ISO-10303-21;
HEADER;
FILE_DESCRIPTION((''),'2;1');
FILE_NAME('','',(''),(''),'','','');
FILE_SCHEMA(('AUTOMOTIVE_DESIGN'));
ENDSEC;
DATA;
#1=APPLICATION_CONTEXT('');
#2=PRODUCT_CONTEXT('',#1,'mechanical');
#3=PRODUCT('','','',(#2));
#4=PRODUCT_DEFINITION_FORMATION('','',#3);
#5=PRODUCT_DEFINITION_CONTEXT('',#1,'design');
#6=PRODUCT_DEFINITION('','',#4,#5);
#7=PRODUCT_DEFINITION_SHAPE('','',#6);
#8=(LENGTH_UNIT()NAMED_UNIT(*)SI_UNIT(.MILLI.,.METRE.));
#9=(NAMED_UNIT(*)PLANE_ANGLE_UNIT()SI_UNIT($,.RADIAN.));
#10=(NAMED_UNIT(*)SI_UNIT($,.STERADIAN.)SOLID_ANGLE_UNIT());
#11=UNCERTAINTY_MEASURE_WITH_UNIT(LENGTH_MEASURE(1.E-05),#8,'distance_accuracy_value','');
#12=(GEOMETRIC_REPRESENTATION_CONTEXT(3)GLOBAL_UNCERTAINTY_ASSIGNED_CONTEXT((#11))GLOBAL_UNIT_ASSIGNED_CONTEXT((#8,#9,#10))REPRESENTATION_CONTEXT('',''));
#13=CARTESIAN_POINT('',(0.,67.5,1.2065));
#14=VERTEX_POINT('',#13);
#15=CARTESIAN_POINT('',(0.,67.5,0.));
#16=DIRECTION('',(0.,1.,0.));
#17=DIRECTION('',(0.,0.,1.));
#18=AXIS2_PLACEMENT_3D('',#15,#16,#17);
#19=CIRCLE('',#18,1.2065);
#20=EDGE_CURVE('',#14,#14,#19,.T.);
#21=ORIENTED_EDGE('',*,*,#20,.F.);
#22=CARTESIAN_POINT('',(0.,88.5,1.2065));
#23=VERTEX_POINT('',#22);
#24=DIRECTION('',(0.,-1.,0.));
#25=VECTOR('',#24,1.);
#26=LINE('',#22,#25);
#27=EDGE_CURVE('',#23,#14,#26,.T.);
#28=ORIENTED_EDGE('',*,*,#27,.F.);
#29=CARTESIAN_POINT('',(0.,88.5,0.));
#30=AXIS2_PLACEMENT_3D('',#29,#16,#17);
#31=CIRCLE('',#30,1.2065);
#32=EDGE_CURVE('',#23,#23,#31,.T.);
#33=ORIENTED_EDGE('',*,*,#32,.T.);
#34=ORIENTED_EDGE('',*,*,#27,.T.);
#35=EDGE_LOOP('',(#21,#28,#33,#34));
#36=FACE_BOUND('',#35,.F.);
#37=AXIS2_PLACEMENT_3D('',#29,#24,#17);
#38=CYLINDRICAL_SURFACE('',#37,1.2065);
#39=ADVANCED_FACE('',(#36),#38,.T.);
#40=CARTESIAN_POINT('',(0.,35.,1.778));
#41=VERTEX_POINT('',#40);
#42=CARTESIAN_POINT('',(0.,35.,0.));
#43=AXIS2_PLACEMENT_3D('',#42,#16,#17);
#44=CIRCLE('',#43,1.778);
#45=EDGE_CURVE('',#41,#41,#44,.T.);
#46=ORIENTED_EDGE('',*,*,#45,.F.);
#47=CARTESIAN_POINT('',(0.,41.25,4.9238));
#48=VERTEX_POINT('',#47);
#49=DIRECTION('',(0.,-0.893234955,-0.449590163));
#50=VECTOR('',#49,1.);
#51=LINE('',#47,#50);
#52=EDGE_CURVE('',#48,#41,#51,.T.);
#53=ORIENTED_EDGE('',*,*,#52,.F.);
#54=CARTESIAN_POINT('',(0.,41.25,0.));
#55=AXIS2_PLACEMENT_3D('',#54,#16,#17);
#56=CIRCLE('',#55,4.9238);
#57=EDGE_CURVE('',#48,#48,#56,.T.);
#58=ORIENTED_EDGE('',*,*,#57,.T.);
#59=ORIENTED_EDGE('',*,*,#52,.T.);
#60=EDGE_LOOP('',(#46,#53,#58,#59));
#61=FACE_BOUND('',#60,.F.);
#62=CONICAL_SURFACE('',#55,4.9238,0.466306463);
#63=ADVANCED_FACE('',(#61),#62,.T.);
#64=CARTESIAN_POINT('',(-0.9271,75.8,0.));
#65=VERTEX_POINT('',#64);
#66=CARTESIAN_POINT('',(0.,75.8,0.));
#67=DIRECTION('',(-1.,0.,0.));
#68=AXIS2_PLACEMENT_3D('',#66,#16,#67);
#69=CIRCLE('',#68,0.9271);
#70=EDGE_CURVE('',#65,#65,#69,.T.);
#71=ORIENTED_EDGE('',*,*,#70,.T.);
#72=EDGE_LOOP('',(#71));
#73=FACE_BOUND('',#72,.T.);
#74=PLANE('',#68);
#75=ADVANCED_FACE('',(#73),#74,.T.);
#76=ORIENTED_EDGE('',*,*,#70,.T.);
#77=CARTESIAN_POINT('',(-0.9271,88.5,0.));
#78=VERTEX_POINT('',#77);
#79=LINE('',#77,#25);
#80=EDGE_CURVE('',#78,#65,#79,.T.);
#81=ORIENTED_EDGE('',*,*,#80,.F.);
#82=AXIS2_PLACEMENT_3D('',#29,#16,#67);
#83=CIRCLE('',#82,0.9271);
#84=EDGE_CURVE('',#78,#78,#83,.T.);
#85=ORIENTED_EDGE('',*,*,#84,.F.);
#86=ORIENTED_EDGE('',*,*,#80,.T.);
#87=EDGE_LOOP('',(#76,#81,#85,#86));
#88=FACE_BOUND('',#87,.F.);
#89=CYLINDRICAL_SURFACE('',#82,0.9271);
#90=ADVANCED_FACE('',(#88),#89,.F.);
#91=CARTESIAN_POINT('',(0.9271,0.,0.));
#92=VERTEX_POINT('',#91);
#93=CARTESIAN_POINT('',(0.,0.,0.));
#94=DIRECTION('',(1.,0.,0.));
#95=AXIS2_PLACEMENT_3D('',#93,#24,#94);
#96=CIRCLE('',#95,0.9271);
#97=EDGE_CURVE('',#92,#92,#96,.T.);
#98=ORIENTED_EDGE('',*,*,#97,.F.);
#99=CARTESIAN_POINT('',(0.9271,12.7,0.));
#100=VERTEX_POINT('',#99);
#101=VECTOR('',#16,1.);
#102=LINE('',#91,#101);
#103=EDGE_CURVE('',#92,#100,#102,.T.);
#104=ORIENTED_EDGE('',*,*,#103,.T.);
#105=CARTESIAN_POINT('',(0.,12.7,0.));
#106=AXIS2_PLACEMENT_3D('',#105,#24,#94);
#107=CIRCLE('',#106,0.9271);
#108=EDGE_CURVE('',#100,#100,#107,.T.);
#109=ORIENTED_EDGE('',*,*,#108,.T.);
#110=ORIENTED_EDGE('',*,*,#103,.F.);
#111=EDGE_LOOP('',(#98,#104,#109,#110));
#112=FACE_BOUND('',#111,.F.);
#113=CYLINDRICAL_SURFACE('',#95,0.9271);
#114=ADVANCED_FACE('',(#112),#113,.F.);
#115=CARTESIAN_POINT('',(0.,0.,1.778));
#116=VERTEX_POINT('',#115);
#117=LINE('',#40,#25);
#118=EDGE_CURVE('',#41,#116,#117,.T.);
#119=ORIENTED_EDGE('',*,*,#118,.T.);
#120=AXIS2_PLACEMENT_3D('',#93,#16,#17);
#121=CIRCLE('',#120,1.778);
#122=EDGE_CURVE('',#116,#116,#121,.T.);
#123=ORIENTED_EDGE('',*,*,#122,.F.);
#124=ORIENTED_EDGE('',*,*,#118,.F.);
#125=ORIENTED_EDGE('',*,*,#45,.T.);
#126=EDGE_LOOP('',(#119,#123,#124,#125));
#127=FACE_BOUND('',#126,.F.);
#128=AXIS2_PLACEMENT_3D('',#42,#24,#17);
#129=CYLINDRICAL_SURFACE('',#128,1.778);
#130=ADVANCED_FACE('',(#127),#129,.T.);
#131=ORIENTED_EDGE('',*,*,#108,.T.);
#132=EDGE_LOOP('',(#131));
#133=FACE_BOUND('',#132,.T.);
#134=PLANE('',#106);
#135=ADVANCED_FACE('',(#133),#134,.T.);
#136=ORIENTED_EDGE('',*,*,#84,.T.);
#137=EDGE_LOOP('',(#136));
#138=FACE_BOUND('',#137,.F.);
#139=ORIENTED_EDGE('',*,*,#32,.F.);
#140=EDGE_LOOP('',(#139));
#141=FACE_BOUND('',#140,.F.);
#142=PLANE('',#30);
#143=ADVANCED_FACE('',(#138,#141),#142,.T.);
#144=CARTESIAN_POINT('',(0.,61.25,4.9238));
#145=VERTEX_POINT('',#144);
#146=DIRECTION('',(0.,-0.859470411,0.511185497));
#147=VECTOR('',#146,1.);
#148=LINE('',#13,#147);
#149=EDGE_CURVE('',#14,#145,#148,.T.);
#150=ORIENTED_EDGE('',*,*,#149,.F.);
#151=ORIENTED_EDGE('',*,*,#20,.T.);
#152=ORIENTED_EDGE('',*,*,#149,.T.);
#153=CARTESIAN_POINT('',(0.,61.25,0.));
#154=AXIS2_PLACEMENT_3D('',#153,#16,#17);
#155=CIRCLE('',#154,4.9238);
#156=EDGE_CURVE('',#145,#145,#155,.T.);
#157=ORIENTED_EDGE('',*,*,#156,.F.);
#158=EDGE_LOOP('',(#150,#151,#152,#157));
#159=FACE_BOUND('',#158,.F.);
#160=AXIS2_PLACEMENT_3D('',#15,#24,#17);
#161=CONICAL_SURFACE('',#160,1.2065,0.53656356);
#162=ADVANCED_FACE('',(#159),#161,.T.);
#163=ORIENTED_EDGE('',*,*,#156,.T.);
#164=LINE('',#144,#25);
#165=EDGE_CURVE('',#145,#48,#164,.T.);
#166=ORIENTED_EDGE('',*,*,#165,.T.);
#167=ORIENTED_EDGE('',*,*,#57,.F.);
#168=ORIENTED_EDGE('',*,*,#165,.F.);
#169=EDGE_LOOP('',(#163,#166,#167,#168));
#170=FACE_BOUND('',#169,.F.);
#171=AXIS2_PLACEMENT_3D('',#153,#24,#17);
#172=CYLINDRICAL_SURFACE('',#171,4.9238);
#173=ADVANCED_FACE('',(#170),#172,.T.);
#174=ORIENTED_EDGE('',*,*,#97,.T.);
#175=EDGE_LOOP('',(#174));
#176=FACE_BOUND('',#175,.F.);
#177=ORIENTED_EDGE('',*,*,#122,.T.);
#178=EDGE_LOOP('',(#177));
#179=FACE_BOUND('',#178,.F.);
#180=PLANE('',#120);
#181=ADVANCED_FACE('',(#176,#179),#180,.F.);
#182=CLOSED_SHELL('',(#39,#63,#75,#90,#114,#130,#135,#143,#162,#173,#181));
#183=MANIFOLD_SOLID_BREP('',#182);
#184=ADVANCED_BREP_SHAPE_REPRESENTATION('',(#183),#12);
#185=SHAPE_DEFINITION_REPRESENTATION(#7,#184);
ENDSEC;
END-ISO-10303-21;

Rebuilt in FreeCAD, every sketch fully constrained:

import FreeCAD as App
import Part
import Sketcher

V = App.Vector
Q = App.Units.Quantity

doc = App.newDocument("Part")
body = doc.addObject("PartDesign::Body", "Body")

# Sketch on YZ plane
sketch1 = body.newObject("Sketcher::SketchObject", "Sketch")
sketch1.AttachmentSupport = (doc.getObject("YZ_Plane"), [""])
sketch1.MapMode = "FlatFace"
sketch1.addGeometry(Part.LineSegment(V(0, 1.8, 0), V(0, 0, 0)), False)
sketch1.addGeometry(Part.LineSegment(V(0, 0, 0), V(88.5, 0, 0)), False)
sketch1.addGeometry(Part.LineSegment(V(88.5, 0, 0), V(88.5, 1.2, 0)), False)
sketch1.addGeometry(Part.LineSegment(V(88.5, 1.2, 0), V(67.5, 1.2, 0)), False)
sketch1.addGeometry(Part.LineSegment(V(67.5, 1.2, 0), V(61.2, 4.9, 0)), False)
sketch1.addGeometry(Part.LineSegment(V(61.2, 4.9, 0), V(41.2, 4.9, 0)), False)
sketch1.addGeometry(Part.LineSegment(V(41.2, 4.9, 0), V(35, 1.8, 0)), False)
sketch1.addGeometry(Part.LineSegment(V(35, 1.8, 0), V(0, 1.8, 0)), False)
sketch1.addConstraint(Sketcher.Constraint("Coincident", 0, 2, 1, 1))
sketch1.addConstraint(Sketcher.Constraint("Coincident", 1, 2, 2, 1))
sketch1.addConstraint(Sketcher.Constraint("Coincident", 2, 2, 3, 1))
sketch1.addConstraint(Sketcher.Constraint("Coincident", 3, 2, 4, 1))
sketch1.addConstraint(Sketcher.Constraint("Coincident", 4, 2, 5, 1))
sketch1.addConstraint(Sketcher.Constraint("Coincident", 5, 2, 6, 1))
sketch1.addConstraint(Sketcher.Constraint("Coincident", 6, 2, 7, 1))
sketch1.addConstraint(Sketcher.Constraint("Coincident", 7, 2, 0, 1))
sketch1.addConstraint(Sketcher.Constraint("Vertical", 0))
sketch1.addConstraint(Sketcher.Constraint("Horizontal", 1))
sketch1.addConstraint(Sketcher.Constraint("Vertical", 2))
sketch1.addConstraint(Sketcher.Constraint("Horizontal", 3))
sketch1.addConstraint(Sketcher.Constraint("Horizontal", 5))
sketch1.addConstraint(Sketcher.Constraint("Horizontal", 7))
sketch1.addConstraint(Sketcher.Constraint("Coincident", 0, 2, -1, 1))
sketch1.addConstraint(Sketcher.Constraint("DistanceX", 3, 2, 3, 1, Q("21 mm")))
sketch1.addConstraint(Sketcher.Constraint("DistanceX", 5, 2, 5, 1, Q("20 mm")))
sketch1.addConstraint(Sketcher.Constraint("DistanceX", 7, 2, 7, 1, Q("35 mm")))
sketch1.addConstraint(Sketcher.Constraint("DistanceX", 1, 1, 1, 2, Q("88.5 mm")))
sketch1.addConstraint(Sketcher.Constraint("DistanceY", 0, 2, 0, 1, Q("1.778 mm")))
sketch1.addConstraint(Sketcher.Constraint("DistanceX", -1, 1, 4, 2, Q("61.25 mm")))
sketch1.addConstraint(Sketcher.Constraint("DistanceY", 2, 1, 2, 2, Q("1.2065 mm")))
sketch1.addConstraint(Sketcher.Constraint("DistanceY", -1, 1, 4, 2, Q("4.9238 mm")))
revolution = body.newObject("PartDesign::Revolution", "Revolution")
revolution.Profile = sketch1
revolution.ReferenceAxis = (sketch1, ["H_Axis"])
revolution.Angle = 360

# Sketch on XZ plane
sketch2 = body.newObject("Sketcher::SketchObject", "Sketch001")
sketch2.AttachmentSupport = (doc.getObject("XZ_Plane"), [""])
sketch2.MapMode = "FlatFace"
sketch2.AttachmentOffset = App.Placement(V(0, 0, -88.5), App.Rotation())
sketch2.addGeometry(Part.Circle(V(0, 0, 0), V(0, 0, 1), 0.9), False)
sketch2.addConstraint(Sketcher.Constraint("Coincident", 0, 3, -1, 1))
sketch2.addConstraint(Sketcher.Constraint("Diameter", 0, Q("1.8542 mm")))
pocket1 = body.newObject("PartDesign::Pocket", "Pocket")
pocket1.Profile = sketch2
pocket1.Length = 12.7
pocket1.Reversed = True

# Sketch on XZ plane
sketch3 = body.newObject("Sketcher::SketchObject", "Sketch002")
sketch3.AttachmentSupport = (doc.getObject("XZ_Plane"), [""])
sketch3.MapMode = "FlatFace"
sketch3.addGeometry(Part.Circle(V(0, 0, 0), V(0, 0, 1), 0.9), False)
sketch3.addConstraint(Sketcher.Constraint("Coincident", 0, 3, -1, 1))
sketch3.addConstraint(Sketcher.Constraint("Diameter", 0, Q("1.8542 mm")))
pocket2 = body.newObject("PartDesign::Pocket", "Pocket001")
pocket2.Profile = sketch3
pocket2.Length = 12.7

doc.recompute()
